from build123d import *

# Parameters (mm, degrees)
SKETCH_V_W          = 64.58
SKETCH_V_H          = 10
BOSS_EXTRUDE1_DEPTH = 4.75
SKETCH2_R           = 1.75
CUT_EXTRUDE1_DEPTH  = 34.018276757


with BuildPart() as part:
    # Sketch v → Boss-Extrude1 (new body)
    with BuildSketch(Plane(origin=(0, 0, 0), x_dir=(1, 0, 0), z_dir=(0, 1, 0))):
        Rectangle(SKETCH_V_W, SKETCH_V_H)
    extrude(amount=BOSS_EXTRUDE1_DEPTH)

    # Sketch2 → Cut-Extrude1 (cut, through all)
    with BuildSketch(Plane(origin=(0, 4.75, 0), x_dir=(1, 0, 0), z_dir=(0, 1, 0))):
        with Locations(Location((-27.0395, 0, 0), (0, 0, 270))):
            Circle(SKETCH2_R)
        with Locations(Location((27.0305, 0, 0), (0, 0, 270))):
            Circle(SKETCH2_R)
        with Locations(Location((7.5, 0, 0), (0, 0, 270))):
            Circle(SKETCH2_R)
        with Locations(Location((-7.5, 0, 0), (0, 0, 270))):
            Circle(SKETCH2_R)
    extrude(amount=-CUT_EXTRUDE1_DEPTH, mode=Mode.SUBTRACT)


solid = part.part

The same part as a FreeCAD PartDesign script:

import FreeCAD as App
import Part
import Sketcher

V = App.Vector
Q = App.Units.Quantity


def add_polygon(sketch, points):
    """Adds a closed chain of lines whose ends are joined by coincident constraints."""
    first, n = sketch.GeometryCount, len(points)
    for a, b in zip(points, points[1:] + points[:1]):
        sketch.addGeometry(Part.LineSegment(App.Vector(*a, 0), App.Vector(*b, 0)), False)
    for i in range(n):
        sketch.addConstraint(Sketcher.Constraint("Coincident", first + i, 2, first + (i + 1) % n, 1))

doc = App.newDocument("Part")
body = doc.addObject("PartDesign::Body", "Body")

# Sketch on XZ plane
sketch1 = body.newObject("Sketcher::SketchObject", "Sketch")
sketch1.AttachmentSupport = (doc.getObject("XZ_Plane"), [""])
sketch1.MapMode = "FlatFace"
add_polygon(sketch1, [(-32, -5), (-32, 5), (32, 5), (32, -5)])  # lines 0-3
sketch1.addConstraint(Sketcher.Constraint("Vertical", 0))
sketch1.addConstraint(Sketcher.Constraint("Horizontal", 1))
sketch1.addConstraint(Sketcher.Constraint("Vertical", 2))
sketch1.addConstraint(Sketcher.Constraint("Horizontal", 3))
sketch1.addConstraint(Sketcher.Constraint("Symmetric", 0, 2, 2, 2, -1, 1))
sketch1.addConstraint(Sketcher.Constraint("DistanceY", 0, 1, 0, 2, Q("10 mm")))
sketch1.addConstraint(Sketcher.Constraint("DistanceX", 1, 1, 1, 2, Q("64.58 mm")))
pad1 = body.newObject("PartDesign::Pad", "Pad")
pad1.Profile = sketch1
pad1.Length = 4.75
pad1.Reversed = True

# Sketch on XZ plane
sketch2 = body.newObject("Sketcher::SketchObject", "Sketch001")
sketch2.AttachmentSupport = (doc.getObject("XZ_Plane"), [""])
sketch2.MapMode = "FlatFace"
sketch2.AttachmentOffset = App.Placement(V(0, 0, -4.75), App.Rotation())
sketch2.addGeometry(Part.Circle(V(-27, 0, 0), V(0, 0, 1), 1.8), False)
sketch2.addGeometry(Part.Circle(V(27, 0, 0), V(0, 0, 1), 1.8), False)
sketch2.addGeometry(Part.Circle(V(7.5, 0, 0), V(0, 0, 1), 1.8), False)
sketch2.addGeometry(Part.Circle(V(-7.5, 0, 0), V(0, 0, 1), 1.8), False)
sketch2.addConstraint(Sketcher.Constraint("Equal", 0, 1))
sketch2.addConstraint(Sketcher.Constraint("Equal", 1, 2))
sketch2.addConstraint(Sketcher.Constraint("Equal", 2, 3))
sketch2.addConstraint(Sketcher.Constraint("Symmetric", 2, 3, 3, 3, -1, 1))
sketch2.addConstraint(Sketcher.Constraint("PointOnObject", 0, 3, -1))
sketch2.addConstraint(Sketcher.Constraint("PointOnObject", 1, 3, -1))
sketch2.addConstraint(Sketcher.Constraint("PointOnObject", 2, 3, -1))
sketch2.addConstraint(Sketcher.Constraint("Diameter", 0, Q("3.5 mm")))
sketch2.addConstraint(Sketcher.Constraint("DistanceX", 3, 3, 2, 3, Q("15 mm")))
sketch2.addConstraint(Sketcher.Constraint("DistanceX", 0, 3, 1, 3, Q("54.07 mm")))
sketch2.addConstraint(Sketcher.Constraint("DistanceX", 0, 3, -1, 1, Q("27.0395 mm")))
pocket1 = body.newObject("PartDesign::Pocket", "Pocket")
pocket1.Profile = sketch2
pocket1.Type = "ThroughAll"
pocket1.Reversed = True

doc.recompute()
